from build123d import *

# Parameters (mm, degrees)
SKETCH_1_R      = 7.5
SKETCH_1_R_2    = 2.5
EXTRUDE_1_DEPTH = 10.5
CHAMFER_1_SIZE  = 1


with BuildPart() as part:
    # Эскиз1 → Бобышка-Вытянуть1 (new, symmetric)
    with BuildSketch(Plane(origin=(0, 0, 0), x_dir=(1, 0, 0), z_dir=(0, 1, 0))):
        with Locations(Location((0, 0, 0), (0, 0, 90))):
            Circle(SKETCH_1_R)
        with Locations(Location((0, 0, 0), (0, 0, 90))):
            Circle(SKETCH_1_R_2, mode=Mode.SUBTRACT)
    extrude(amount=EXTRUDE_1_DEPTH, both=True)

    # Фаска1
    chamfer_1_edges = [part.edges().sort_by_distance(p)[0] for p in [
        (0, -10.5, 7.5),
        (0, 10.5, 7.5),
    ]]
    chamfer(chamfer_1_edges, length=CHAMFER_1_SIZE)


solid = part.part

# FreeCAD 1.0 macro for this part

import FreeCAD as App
import Part
import Sketcher
from FreeCAD import Vector
Q = App.Units.Quantity


def edges_at(feature, points):
    """Names of the edges that pass closest to the given points."""
    edges = feature.Shape.Edges
    near = lambda p: min(range(len(edges)), key=lambda i: edges[i].distToShape(Part.Vertex(*p))[0])
    return sorted({f"Edge{near(p) + 1}" for p in points})

doc = App.newDocument("Part")
body = doc.addObject("PartDesign::Body", "Body")

# Sketch on XZ plane
sketch1 = doc.addObject("Sketcher::SketchObject", "Sketch")
body.addObject(sketch1)
sketch1.AttachmentSupport = (doc.XZ_Plane, [""])
sketch1.MapMode = "FlatFace"
sketch1.addGeometry([
    Part.Circle(Vector(0, 0, 0), Vector(0, 0, 1), 7.5),
    Part.Circle(Vector(0, 0, 0), Vector(0, 0, 1), 2.5),
], False)
sketch1.addConstraint([
    Sketcher.Constraint("Coincident", 0, 3, -1, 1),
    Sketcher.Constraint("Coincident", 1, 3, -1, 1),
    Sketcher.Constraint("Diameter", 0, Q("15 mm")),
    Sketcher.Constraint("Diameter", 1, Q("5 mm")),
])
pad1 = doc.addObject("PartDesign::Pad", "Pad")
body.addObject(pad1)
pad1.Profile = sketch1
pad1.Length = 21
pad1.Midplane = True
doc.recompute()

chamfer = doc.addObject("PartDesign::Chamfer", "Chamfer")
body.addObject(chamfer)
chamfer.Base = (pad1, edges_at(pad1, [(0, -10.5, 7.5), (0, 10.5, 7.5)]))
chamfer.Size = 1

doc.recompute()
